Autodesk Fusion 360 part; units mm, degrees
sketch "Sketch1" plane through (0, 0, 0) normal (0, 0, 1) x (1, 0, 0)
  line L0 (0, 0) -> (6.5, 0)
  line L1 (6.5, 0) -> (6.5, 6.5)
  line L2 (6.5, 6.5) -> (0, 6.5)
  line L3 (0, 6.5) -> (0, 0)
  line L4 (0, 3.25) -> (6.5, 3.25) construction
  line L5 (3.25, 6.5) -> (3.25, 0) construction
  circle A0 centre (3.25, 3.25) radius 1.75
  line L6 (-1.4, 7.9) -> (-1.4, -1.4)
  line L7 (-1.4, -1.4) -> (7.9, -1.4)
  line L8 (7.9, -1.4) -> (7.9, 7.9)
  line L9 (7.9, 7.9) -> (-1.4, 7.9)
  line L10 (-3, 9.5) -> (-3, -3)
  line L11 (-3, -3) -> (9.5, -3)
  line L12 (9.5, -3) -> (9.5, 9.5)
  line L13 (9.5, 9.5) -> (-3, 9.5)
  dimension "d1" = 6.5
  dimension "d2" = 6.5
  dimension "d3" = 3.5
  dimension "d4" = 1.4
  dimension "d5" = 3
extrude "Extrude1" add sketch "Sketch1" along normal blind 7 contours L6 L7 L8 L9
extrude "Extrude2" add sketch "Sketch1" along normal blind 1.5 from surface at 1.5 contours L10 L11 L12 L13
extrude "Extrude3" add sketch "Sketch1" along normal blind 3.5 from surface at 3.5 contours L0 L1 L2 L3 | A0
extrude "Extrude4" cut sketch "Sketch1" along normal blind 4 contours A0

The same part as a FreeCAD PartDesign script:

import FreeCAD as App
import Part
import Sketcher
from FreeCAD import Vector
Q = App.Units.Quantity


def add_polygon(sketch, points):
    """Adds a closed chain of lines whose ends are joined by coincident constraints."""
    first, n = sketch.GeometryCount, len(points)
    for a, b in zip(points, points[1:] + points[:1]):
        sketch.addGeometry(Part.LineSegment(App.Vector(*a, 0), App.Vector(*b, 0)), False)
    for i in range(n):
        sketch.addConstraint(Sketcher.Constraint("Coincident", first + i, 2, first + (i + 1) % n, 1))

doc = App.newDocument("Part")
params = doc.addObject("Spreadsheet::Sheet", "Params")
for row, (alias, value) in enumerate([
    ("sketch1_width", "6.5 mm"),
    ("pad1_length", "7 mm"),
    ("sketch2_width", "12.5 mm"),
    ("sketch2_width2", "9.3 mm"),
    ("pad2_length", "1.5 mm"),
    ("sketch3_width", "6.5 mm"),
    ("pad3_length", "3.5 mm"),
    ("sketch4_diameter", "3.5 mm"),
    ("pocket1_length", "4 mm"),
], start=1):
    params.set(f"A{row}", alias)
    params.set(f"B{row}", "=" + value)
    params.setAlias(f"B{row}", alias)

body = doc.addObject("PartDesign::Body", "Body")

sketch1 = body.newObject("Sketcher::SketchObject", "Sketch")
sketch1.AttachmentSupport = (doc.getObject("XY_Plane"), [""])
sketch1.MapMode = "FlatFace"
add_polygon(sketch1, [(7.9, 7.9), (-1.4, 7.9), (-1.4, -1.4), (7.9, -1.4)])
add_polygon(sketch1, [(6.5, 0), (0, 0), (0, 6.5), (6.5, 6.5)])
sketch1.addConstraint([
    Sketcher.Constraint("Horizontal", 0),
    Sketcher.Constraint("Vertical", 1),
    Sketcher.Constraint("Horizontal", 2),
    Sketcher.Constraint("Vertical", 3),
    Sketcher.Constraint("Horizontal", 4),
    Sketcher.Constraint("Vertical", 5),
    Sketcher.Constraint("Horizontal", 6),
    Sketcher.Constraint("Vertical", 7),
    Sketcher.Constraint("Coincident", 4, 2, -1, 1),
    Sketcher.Constraint("Equal", 2, 1),
    Sketcher.Constraint("Equal", 6, 5),
    Sketcher.Constraint("DistanceX", 4, 2, 4, 1, Q("6.5 mm")),
    Sketcher.Constraint("DistanceX", 0, 2, -1, 1, Q("1.4 mm")),
    Sketcher.Constraint("DistanceY", 1, 2, -1, 1, Q("1.4 mm")),
    Sketcher.Constraint("DistanceY", 5, 2, 0, 2, Q("1.4 mm")),
])
sketch1.setExpression("Constraints[19]", "Params.sketch1_width")
pad1 = body.newObject("PartDesign::Pad", "Pad")
pad1.Profile = sketch1
pad1.setExpression("Length", "Params.pad1_length")

sketch2 = body.newObject("Sketcher::SketchObject", "Sketch001")
sketch2.AttachmentSupport = (doc.getObject("XY_Plane"), [""])
sketch2.MapMode = "FlatFace"
sketch2.AttachmentOffset = App.Placement(Vector(0, 0, 1.5), App.Rotation())
add_polygon(sketch2, [(9.5, 9.5), (-3, 9.5), (-3, -3), (9.5, -3)])
add_polygon(sketch2, [(-1.4, -1.4), (-1.4, 7.9), (7.9, 7.9), (7.9, -1.4)])
sketch2.addConstraint([
    Sketcher.Constraint("Horizontal", 0),
    Sketcher.Constraint("Vertical", 1),
    Sketcher.Constraint("Horizontal", 2),
    Sketcher.Constraint("Vertical", 3),
    Sketcher.Constraint("Vertical", 4),
    Sketcher.Constraint("Horizontal", 5),
    Sketcher.Constraint("Vertical", 6),
    Sketcher.Constraint("Horizontal", 7),
    Sketcher.Constraint("Equal", 2, 1),
    Sketcher.Constraint("Equal", 7, 4),
    Sketcher.Constraint("DistanceX", 0, 2, -1, 1, Q("3 mm")),
    Sketcher.Constraint("DistanceY", 1, 2, -1, 1, Q("3 mm")),
    Sketcher.Constraint("DistanceX", 4, 2, -1, 1, Q("1.4 mm")),
    Sketcher.Constraint("DistanceY", 6, 2, -1, 1, Q("1.4 mm")),
    Sketcher.Constraint("DistanceX", 0, 2, 0, 1, Q("12.5 mm")),
    Sketcher.Constraint("DistanceX", 5, 1, 5, 2, Q("9.3 mm")),
])
sketch2.setExpression("Constraints[22]", "Params.sketch2_width")
sketch2.setExpression("Constraints[23]", "Params.sketch2_width2")
pad2 = body.newObject("PartDesign::Pad", "Pad001")
pad2.Profile = sketch2
pad2.setExpression("Length", "Params.pad2_length")

sketch3 = body.newObject("Sketcher::SketchObject", "Sketch002")
sketch3.AttachmentSupport = (doc.getObject("XY_Plane"), [""])
sketch3.MapMode = "FlatFace"
sketch3.AttachmentOffset = App.Placement(Vector(0, 0, 3.5), App.Rotation())
add_polygon(sketch3, [(0, 6.5), (0, 0), (6.5, 0), (6.5, 6.5)])
sketch3.addConstraint([
    Sketcher.Constraint("Vertical", 0),
    Sketcher.Constraint("Horizontal", 1),
    Sketcher.Constraint("Vertical", 2),
    Sketcher.Constraint("Horizontal", 3),
    Sketcher.Constraint("Coincident", 0, 2, -1, 1),
    Sketcher.Constraint("Equal", 3, 0),
    Sketcher.Constraint("DistanceX", 1, 1, 1, 2, Q("6.5 mm")),
])
sketch3.setExpression("Constraints[10]", "Params.sketch3_width")
pad3 = body.newObject("PartDesign::Pad", "Pad002")
pad3.Profile = sketch3
pad3.setExpression("Length", "Params.pad3_length")

sketch4 = body.newObject("Sketcher::SketchObject", "Sketch003")
sketch4.AttachmentSupport = (doc.getObject("XY_Plane"), [""])
sketch4.MapMode = "FlatFace"
sketch4.addGeometry(Part.Circle(Vector(3.25, 3.25, 0), Vector(0, 0, 1), 1.75), False)
sketch4.addConstraint([
    Sketcher.Constraint("Diameter", 0, Q("3.5 mm")),
    Sketcher.Constraint("DistanceX", -1, 1, 0, 3, Q("3.25 mm")),
    Sketcher.Constraint("DistanceY", -1, 1, 0, 3, Q("3.25 mm")),
])
sketch4.setExpression("Constraints[0]", "Params.sketch4_diameter")
pocket1 = body.newObject("PartDesign::Pocket", "Pocket")
pocket1.Profile = sketch4
pocket1.setExpression("Length", "Params.pocket1_length")
pocket1.Reversed = True

doc.recompute()
